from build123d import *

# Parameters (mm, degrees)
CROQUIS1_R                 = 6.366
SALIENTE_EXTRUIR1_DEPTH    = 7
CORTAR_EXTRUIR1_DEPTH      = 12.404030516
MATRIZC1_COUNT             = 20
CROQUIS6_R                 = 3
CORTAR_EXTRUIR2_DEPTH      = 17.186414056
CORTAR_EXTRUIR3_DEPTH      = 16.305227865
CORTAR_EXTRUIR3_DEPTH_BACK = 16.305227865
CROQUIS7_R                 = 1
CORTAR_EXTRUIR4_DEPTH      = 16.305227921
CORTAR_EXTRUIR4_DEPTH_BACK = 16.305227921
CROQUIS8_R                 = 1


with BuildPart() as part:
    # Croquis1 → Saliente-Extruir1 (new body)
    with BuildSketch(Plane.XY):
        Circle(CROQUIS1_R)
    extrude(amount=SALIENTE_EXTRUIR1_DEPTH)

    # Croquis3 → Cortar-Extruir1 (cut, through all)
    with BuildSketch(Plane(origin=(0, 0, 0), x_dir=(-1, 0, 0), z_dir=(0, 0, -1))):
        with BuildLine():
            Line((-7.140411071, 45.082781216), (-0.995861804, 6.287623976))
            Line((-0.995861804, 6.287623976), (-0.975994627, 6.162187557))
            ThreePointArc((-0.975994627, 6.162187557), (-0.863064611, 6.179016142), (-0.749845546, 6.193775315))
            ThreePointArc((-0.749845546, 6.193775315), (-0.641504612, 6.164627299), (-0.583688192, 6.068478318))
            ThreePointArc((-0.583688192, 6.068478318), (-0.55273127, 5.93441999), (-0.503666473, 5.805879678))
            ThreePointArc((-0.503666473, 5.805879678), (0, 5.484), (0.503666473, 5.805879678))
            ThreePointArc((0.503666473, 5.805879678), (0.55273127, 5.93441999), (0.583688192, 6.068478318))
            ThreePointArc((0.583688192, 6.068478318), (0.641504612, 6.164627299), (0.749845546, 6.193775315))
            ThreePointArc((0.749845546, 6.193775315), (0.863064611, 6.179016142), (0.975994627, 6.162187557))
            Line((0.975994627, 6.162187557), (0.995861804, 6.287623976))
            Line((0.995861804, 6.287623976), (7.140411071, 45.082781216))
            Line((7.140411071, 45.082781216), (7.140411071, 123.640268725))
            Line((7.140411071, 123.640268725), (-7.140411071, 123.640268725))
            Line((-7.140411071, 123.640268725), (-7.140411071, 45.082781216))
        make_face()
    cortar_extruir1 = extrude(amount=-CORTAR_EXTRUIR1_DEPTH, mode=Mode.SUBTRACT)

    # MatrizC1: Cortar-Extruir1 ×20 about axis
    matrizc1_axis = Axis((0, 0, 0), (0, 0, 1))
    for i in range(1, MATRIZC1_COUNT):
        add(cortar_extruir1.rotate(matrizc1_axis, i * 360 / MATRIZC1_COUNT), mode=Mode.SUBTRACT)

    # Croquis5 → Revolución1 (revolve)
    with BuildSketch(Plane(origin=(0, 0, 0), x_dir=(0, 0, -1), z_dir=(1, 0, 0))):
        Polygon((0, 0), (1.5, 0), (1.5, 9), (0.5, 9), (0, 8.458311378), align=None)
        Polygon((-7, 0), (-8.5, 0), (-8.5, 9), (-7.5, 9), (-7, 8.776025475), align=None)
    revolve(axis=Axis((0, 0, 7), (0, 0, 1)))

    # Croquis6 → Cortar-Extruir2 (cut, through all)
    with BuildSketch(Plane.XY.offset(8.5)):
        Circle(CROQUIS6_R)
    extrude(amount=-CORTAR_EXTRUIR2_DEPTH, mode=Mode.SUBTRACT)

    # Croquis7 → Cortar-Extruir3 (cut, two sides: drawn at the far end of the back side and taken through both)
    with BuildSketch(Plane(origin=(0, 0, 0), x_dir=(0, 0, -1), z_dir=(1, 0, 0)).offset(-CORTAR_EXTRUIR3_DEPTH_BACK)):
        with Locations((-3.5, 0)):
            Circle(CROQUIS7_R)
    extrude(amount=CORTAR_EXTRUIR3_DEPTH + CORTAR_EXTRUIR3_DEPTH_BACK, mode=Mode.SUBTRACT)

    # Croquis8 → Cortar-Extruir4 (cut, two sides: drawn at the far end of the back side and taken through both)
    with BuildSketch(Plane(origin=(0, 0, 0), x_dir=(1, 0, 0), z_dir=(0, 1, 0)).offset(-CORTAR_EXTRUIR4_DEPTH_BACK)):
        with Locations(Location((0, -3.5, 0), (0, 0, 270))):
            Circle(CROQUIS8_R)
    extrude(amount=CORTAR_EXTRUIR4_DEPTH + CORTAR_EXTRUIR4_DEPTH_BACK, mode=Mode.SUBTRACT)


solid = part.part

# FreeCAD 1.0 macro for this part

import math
import FreeCAD as App
import Part
import Sketcher
from FreeCAD import Vector
Q = App.Units.Quantity


def add_polygon(sketch, points):
    """Adds a closed chain of lines whose ends are joined by coincident constraints."""
    first, n = sketch.GeometryCount, len(points)
    for a, b in zip(points, points[1:] + points[:1]):
        sketch.addGeometry(Part.LineSegment(App.Vector(*a, 0), App.Vector(*b, 0)), False)
    for i in range(n):
        sketch.addConstraint(Sketcher.Constraint("Coincident", first + i, 2, first + (i + 1) % n, 1))

doc = App.newDocument("Part")
body = doc.addObject("PartDesign::Body", "Body")

sketch1 = body.newObject("Sketcher::SketchObject", "Sketch")
sketch1.AttachmentSupport = (doc.getObject("XY_Plane"), [""])
sketch1.MapMode = "FlatFace"
sketch1.addGeometry(Part.Circle(Vector(0, 0, 0), Vector(0, 0, 1), 6.366), False)
sketch1.addConstraint(Sketcher.Constraint("Coincident", 0, 3, -1, 1))
sketch1.addConstraint(Sketcher.Constraint("Diameter", 0, 12.732))
pad1 = body.newObject("PartDesign::Pad", "Pad")
pad1.Profile = sketch1
pad1.Length = 7

sketch2 = body.newObject("Sketcher::SketchObject", "Sketch001")
sketch2.AttachmentSupport = (doc.getObject("XY_Plane"), [""])
sketch2.MapMode = "FlatFace"
sketch2.addGeometry(Part.LineSegment(Vector(7.140411, 45.082781, 0), Vector(0.995862, 6.287624, 0)), False)
sketch2.addGeometry(Part.LineSegment(Vector(0.995862, 6.287624, 0), Vector(0.975995, 6.162188, 0)), False)
sketch2.addGeometry(Part.ArcOfCircle(Part.Circle(Vector(0.000001, 0.000004, 0), Vector(0, 0, 1), 6.238996), math.radians(80.999999), math.radians(83.097116)), False)
sketch2.addGeometry(Part.ArcOfCircle(Part.Circle(Vector(0.731818, 6.044863, 0), Vector(0, 0, 1), 0.15), math.radians(83.097115), math.radians(170.941782)), False)
sketch2.addGeometry(Part.ArcOfCircle(Part.Circle(Vector(-0.403841, 6.225916, 0), Vector(0, 0, 1), 1), math.radians(-24.836899), math.radians(-9.058218)), False)
sketch2.addGeometry(Part.ArcOfCircle(Part.Circle(Vector(0, 6.039, 0), Vector(0, 0, 1), 0.555), math.radians(-155.163101), math.radians(-24.836899)), False)
sketch2.addGeometry(Part.ArcOfCircle(Part.Circle(Vector(0.403841, 6.225916, 0), Vector(0, 0, 1), 1), math.radians(-170.941782), math.radians(-155.163101)), False)
sketch2.addGeometry(Part.ArcOfCircle(Part.Circle(Vector(-0.731818, 6.044863, 0), Vector(0, 0, 1), 0.15), math.radians(9.058218), math.radians(96.902885)), False)
sketch2.addGeometry(Part.ArcOfCircle(Part.Circle(Vector(-0.000001, 0.000004, 0), Vector(0, 0, 1), 6.238996), math.radians(96.902884), math.radians(99.000001)), False)
sketch2.addGeometry(Part.LineSegment(Vector(-0.975995, 6.162188, 0), Vector(-0.995862, 6.287624, 0)), False)
sketch2.addGeometry(Part.LineSegment(Vector(-0.995862, 6.287624, 0), Vector(-7.140411, 45.082781, 0)), False)
sketch2.addGeometry(Part.LineSegment(Vector(-7.140411, 45.082781, 0), Vector(-7.140411, 123.640269, 0)), False)
sketch2.addGeometry(Part.LineSegment(Vector(-7.140411, 123.640269, 0), Vector(7.140411, 123.640269, 0)), False)
sketch2.addGeometry(Part.LineSegment(Vector(7.140411, 123.640269, 0), Vector(7.140411, 45.082781, 0)), False)
sketch2.addConstraint(Sketcher.Constraint("Coincident", 0, 2, 1, 1))
sketch2.addConstraint(Sketcher.Constraint("Coincident", 1, 2, 2, 1))
sketch2.addConstraint(Sketcher.Constraint("Tangent", 2, 2, 3, 1))
sketch2.addConstraint(Sketcher.Constraint("Tangent", 3, 2, 4, 2))
sketch2.addConstraint(Sketcher.Constraint("Tangent", 4, 1, 5, 2))
sketch2.addConstraint(Sketcher.Constraint("Tangent", 5, 1, 6, 2))
sketch2.addConstraint(Sketcher.Constraint("Tangent", 6, 1, 7, 1))
sketch2.addConstraint(Sketcher.Constraint("Tangent", 7, 2, 8, 1))
sketch2.addConstraint(Sketcher.Constraint("Coincident", 8, 2, 9, 1))
sketch2.addConstraint(Sketcher.Constraint("Coincident", 9, 2, 10, 1))
sketch2.addConstraint(Sketcher.Constraint("Coincident", 10, 2, 11, 1))
sketch2.addConstraint(Sketcher.Constraint("Coincident", 11, 2, 12, 1))
sketch2.addConstraint(Sketcher.Constraint("Coincident", 12, 2, 13, 1))
sketch2.addConstraint(Sketcher.Constraint("Coincident", 13, 2, 0, 1))
sketch2.addConstraint(Sketcher.Constraint("Vertical", 11))
sketch2.addConstraint(Sketcher.Constraint("Horizontal", 12))
sketch2.addConstraint(Sketcher.Constraint("Vertical", 13))
sketch2.addConstraint(Sketcher.Constraint("Coincident", 2, 3, -1, 1))
sketch2.addConstraint(Sketcher.Constraint("Coincident", 8, 3, -1, 1))
sketch2.addConstraint(Sketcher.Constraint("Equal", 4, 6))
sketch2.addConstraint(Sketcher.Constraint("Equal", 3, 7))
sketch2.addConstraint(Sketcher.Constraint("Equal", 2, 8))
sketch2.addConstraint(Sketcher.Constraint("Symmetric", 4, 3, 6, 3, -2))
sketch2.addConstraint(Sketcher.Constraint("Symmetric", 0, 2, 9, 2, -2))
sketch2.addConstraint(Sketcher.Constraint("Symmetric", 10, 2, 13, 2, -2))
sketch2.addConstraint(Sketcher.Constraint("Parallel", 0, 1))
sketch2.addConstraint(Sketcher.Constraint("Parallel", 9, 10))
sketch2.addConstraint(Sketcher.Constraint("Radius", 4, 1.0))
sketch2.addConstraint(Sketcher.Constraint("Angle", 0, Q("-99 deg")))
sketch2.addConstraint(Sketcher.Constraint("Radius", 3, 0.15))
sketch2.addConstraint(Sketcher.Constraint("Radius", 5, 0.555))
sketch2.addConstraint(Sketcher.Constraint("Distance", 1, 0.127))
sketch2.addConstraint(Sketcher.Constraint("DistanceY", -1, 1, 5, 3, 6.039))
sketch2.addConstraint(Sketcher.Constraint("Radius", 2, 6.238996))
sketch2.addConstraint(Sketcher.Constraint("DistanceY", 4, 1, 3, 2, 0.262599))
sketch2.addConstraint(Sketcher.Constraint("DistanceX", 12, 1, 12, 2, 14.280822))
sketch2.addConstraint(Sketcher.Constraint("DistanceY", 11, 1, 11, 2, 78.557488))
sketch2.addConstraint(Sketcher.Constraint("DistanceX", -1, 1, 0, 2, 0.995862))
pocket1 = body.newObject("PartDesign::Pocket", "Pocket")
pocket1.Profile = sketch2
pocket1.Type = "ThroughAll"
pocket1.Reversed = True
doc.recompute()

polarpattern = body.newObject("PartDesign::PolarPattern", "PolarPattern")
polarpattern.Originals = [pocket1]
polarpattern.Axis = (doc.getObject("Z_Axis"), [""])
polarpattern.Angle = 360
polarpattern.Occurrences = 20
body.Tip = polarpattern

sketch3 = body.newObject("Sketcher::SketchObject", "Sketch002")
sketch3.AttachmentSupport = (doc.getObject("YZ_Plane"), [""])
sketch3.MapMode = "FlatFace"
add_polygon(sketch3, [(0, 0), (0, -1.5), (9, -1.5), (9, -0.5), (8.458311, 0)])
add_polygon(sketch3, [(0, 8.5), (0, 7), (8.776025, 7), (9, 7.5), (9, 8.5)])
sketch3.addConstraint(Sketcher.Constraint("Vertical", 0))
sketch3.addConstraint(Sketcher.Constraint("Horizontal", 1))
sketch3.addConstraint(Sketcher.Constraint("Vertical", 2))
sketch3.addConstraint(Sketcher.Constraint("Horizontal", 4))
sketch3.addConstraint(Sketcher.Constraint("Vertical", 5))
sketch3.addConstraint(Sketcher.Constraint("Horizontal", 6))
sketch3.addConstraint(Sketcher.Constraint("Vertical", 8))
sketch3.addConstraint(Sketcher.Constraint("Horizontal", 9))
sketch3.addConstraint(Sketcher.Constraint("Coincident", 4, 2, -1, 1))
sketch3.addConstraint(Sketcher.Constraint("PointOnObject", 5, 2, -2))
sketch3.addConstraint(Sketcher.Constraint("Vertical", 2, 2, 7, 2))
sketch3.addConstraint(Sketcher.Constraint("Equal", 0, 5))
sketch3.addConstraint(Sketcher.Constraint("Equal", 2, 8))
sketch3.addConstraint(Sketcher.Constraint("DistanceX", 1, 1, 1, 2, 9.0))
sketch3.addConstraint(Sketcher.Constraint("DistanceY", 2, 1, 2, 2, 1.0))
sketch3.addConstraint(Sketcher.Constraint("DistanceY", 0, 2, 0, 1, 1.5))
sketch3.addConstraint(Sketcher.Constraint("DistanceY", -1, 1, 5, 2, 7.0))
sketch3.addConstraint(Sketcher.Constraint("DistanceX", 4, 2, 4, 1, 8.458311))
sketch3.addConstraint(Sketcher.Constraint("DistanceX", 6, 1, 6, 2, 8.776025))
revolution = body.newObject("PartDesign::Revolution", "Revolution")
revolution.Profile = sketch3
revolution.ReferenceAxis = (sketch3, ["V_Axis"])
revolution.Angle = 360

sketch4 = body.newObject("Sketcher::SketchObject", "Sketch003")
sketch4.AttachmentSupport = (doc.getObject("XY_Plane"), [""])
sketch4.MapMode = "FlatFace"
sketch4.AttachmentOffset = App.Placement(Vector(0, 0, 8.5), App.Rotation())
sketch4.addGeometry(Part.Circle(Vector(0, 0, 0), Vector(0, 0, 1), 3), False)
sketch4.addConstraint(Sketcher.Constraint("Coincident", 0, 3, -1, 1))
sketch4.addConstraint(Sketcher.Constraint("Diameter", 0, 6.0))
pocket2 = body.newObject("PartDesign::Pocket", "Pocket001")
pocket2.Profile = sketch4
pocket2.Type = "ThroughAll"

sketch5 = body.newObject("Sketcher::SketchObject", "Sketch004")
sketch5.AttachmentSupport = (doc.getObject("YZ_Plane"), [""])
sketch5.MapMode = "FlatFace"
sketch5.addGeometry(Part.Circle(Vector(0, 3.5, 0), Vector(0, 0, 1), 1), False)
sketch5.addConstraint(Sketcher.Constraint("PointOnObject", 0, 3, -2))
sketch5.addConstraint(Sketcher.Constraint("Diameter", 0, 2.0))
sketch5.addConstraint(Sketcher.Constraint("DistanceY", -1, 1, 0, 3, 3.5))
pocket3 = body.newObject("PartDesign::Pocket", "Pocket002")
pocket3.Profile = sketch5
pocket3.Type = "ThroughAll"
pocket3.Midplane = True

sketch6 = body.newObject("Sketcher::SketchObject", "Sketch005")
sketch6.AttachmentSupport = (doc.getObject("XZ_Plane"), [""])
sketch6.MapMode = "FlatFace"
sketch6.addGeometry(Part.Circle(Vector(0, 3.5, 0), Vector(0, 0, 1), 1), False)
sketch6.addConstraint(Sketcher.Constraint("PointOnObject", 0, 3, -2))
sketch6.addConstraint(Sketcher.Constraint("Diameter", 0, 2.0))
sketch6.addConstraint(Sketcher.Constraint("DistanceY", -1, 1, 0, 3, 3.5))
pocket4 = body.newObject("PartDesign::Pocket", "Pocket003")
pocket4.Profile = sketch6
pocket4.Type = "ThroughAll"
pocket4.Midplane = True

doc.recompute()
